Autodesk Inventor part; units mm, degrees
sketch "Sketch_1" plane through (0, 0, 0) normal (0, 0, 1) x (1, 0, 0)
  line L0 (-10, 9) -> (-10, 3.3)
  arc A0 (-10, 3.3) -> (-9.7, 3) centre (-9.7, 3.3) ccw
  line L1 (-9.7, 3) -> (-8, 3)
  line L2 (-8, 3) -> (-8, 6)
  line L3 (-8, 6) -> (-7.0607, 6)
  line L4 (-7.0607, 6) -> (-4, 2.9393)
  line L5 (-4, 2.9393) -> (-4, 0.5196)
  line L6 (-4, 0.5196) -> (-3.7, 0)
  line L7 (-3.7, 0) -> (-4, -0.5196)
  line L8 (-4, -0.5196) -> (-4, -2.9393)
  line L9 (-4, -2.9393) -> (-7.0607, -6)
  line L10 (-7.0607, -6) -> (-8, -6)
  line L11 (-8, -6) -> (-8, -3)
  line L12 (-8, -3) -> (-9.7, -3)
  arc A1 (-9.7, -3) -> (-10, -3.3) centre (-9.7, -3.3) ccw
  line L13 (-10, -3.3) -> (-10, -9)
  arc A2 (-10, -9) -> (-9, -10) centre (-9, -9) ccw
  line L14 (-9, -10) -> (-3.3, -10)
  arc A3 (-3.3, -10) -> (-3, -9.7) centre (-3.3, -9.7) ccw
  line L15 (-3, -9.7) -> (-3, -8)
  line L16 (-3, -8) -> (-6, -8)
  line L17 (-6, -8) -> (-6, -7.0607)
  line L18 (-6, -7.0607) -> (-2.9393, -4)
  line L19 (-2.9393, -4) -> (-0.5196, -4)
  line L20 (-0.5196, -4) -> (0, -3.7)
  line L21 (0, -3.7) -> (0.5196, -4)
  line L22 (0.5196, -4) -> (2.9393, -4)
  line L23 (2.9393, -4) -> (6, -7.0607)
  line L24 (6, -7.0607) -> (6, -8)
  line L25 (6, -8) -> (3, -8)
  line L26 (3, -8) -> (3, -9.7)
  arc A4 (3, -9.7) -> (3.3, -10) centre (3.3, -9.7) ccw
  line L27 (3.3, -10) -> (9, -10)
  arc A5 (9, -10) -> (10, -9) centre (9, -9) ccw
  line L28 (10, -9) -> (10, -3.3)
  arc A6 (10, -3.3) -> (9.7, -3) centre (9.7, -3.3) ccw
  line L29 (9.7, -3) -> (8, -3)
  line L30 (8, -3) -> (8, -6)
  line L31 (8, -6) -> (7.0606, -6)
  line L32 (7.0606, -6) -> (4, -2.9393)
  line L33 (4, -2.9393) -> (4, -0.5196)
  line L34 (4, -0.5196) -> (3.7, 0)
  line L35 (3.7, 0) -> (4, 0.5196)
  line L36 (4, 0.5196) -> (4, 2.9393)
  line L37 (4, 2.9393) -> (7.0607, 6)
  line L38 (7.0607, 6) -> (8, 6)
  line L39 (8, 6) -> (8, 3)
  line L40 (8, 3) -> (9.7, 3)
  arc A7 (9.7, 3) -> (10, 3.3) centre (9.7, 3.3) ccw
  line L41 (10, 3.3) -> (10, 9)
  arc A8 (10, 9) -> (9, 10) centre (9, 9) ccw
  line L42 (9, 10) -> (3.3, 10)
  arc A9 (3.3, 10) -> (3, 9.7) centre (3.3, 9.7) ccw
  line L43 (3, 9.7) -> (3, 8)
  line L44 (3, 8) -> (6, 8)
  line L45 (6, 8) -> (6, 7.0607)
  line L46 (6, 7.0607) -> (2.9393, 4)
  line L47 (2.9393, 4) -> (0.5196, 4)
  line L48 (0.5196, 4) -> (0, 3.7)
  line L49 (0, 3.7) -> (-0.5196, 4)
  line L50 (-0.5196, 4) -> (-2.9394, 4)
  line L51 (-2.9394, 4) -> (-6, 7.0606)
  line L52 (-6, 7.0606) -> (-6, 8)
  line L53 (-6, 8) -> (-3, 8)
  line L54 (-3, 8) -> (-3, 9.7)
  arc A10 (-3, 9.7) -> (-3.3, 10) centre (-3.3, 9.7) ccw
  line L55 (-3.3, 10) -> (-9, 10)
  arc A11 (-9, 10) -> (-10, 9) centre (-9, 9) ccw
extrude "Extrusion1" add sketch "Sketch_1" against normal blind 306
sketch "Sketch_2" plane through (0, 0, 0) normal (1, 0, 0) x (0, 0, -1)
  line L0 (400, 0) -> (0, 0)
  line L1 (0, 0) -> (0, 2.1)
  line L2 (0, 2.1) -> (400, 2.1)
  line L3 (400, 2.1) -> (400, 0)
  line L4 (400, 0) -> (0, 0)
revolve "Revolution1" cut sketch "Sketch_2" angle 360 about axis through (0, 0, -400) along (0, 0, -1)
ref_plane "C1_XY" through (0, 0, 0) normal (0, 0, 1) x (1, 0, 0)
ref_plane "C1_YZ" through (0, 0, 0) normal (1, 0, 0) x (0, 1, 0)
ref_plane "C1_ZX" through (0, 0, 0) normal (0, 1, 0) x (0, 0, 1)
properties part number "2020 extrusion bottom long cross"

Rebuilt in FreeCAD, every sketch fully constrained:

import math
import FreeCAD as App
import Part
import Sketcher

V = App.Vector
Q = App.Units.Quantity


def add_polygon(sketch, points):
    """Adds a closed chain of lines whose ends are joined by coincident constraints."""
    first, n = sketch.GeometryCount, len(points)
    for a, b in zip(points, points[1:] + points[:1]):
        sketch.addGeometry(Part.LineSegment(App.Vector(*a, 0), App.Vector(*b, 0)), False)
    for i in range(n):
        sketch.addConstraint(Sketcher.Constraint("Coincident", first + i, 2, first + (i + 1) % n, 1))

doc = App.newDocument("Part")
params = doc.addObject("Spreadsheet::Sheet", "Params")
for row, (alias, value) in enumerate([
    ("sketch1_radius", "1 mm"),
    ("sketch1_radius2", "0.3 mm"),
    ("sketch1_width", "3 mm"),
    ("sketch1_width2", "1.7 mm"),
    ("sketch1_width3", "5.7 mm"),
    ("pad1_length", "306 mm"),
    ("sketch2_height", "400 mm"),
    ("sketch2_width", "2.1 mm"),
    ("groove_angle", "360 deg"),
], start=1):
    params.set(f"A{row}", alias)
    params.set(f"B{row}", "=" + value)
    params.setAlias(f"B{row}", alias)

body = doc.addObject("PartDesign::Body", "Body")

# Sketch on XY plane
sketch1 = body.newObject("Sketcher::SketchObject", "Sketch")
sketch1.AttachmentSupport = (doc.getObject("XY_Plane"), [""])
sketch1.MapMode = "FlatFace"
sketch1.addGeometry(Part.ArcOfCircle(Part.Circle(V(-9, 9, 0), V(0, 0, 1), 1), math.radians(90), math.radians(180)), False)
sketch1.addGeometry(Part.LineSegment(V(-10, 9, 0), V(-10, 3.3, 0)), False)
sketch1.addGeometry(Part.ArcOfCircle(Part.Circle(V(-9.7, 3.3, 0), V(0, 0, 1), 0.3), math.radians(180), math.radians(270)), False)
sketch1.addGeometry(Part.LineSegment(V(-9.7, 3, 0), V(-8, 3, 0)), False)
sketch1.addGeometry(Part.LineSegment(V(-8, 3, 0), V(-8, 6, 0)), False)
sketch1.addGeometry(Part.LineSegment(V(-8, 6, 0), V(-7.06, 6, 0)), False)
sketch1.addGeometry(Part.LineSegment(V(-7.06, 6, 0), V(-4, 2.94, 0)), False)
sketch1.addGeometry(Part.LineSegment(V(-4, 2.94, 0), V(-4, 0.52, 0)), False)
sketch1.addGeometry(Part.LineSegment(V(-4, 0.52, 0), V(-3.7, 0, 0)), False)
sketch1.addGeometry(Part.LineSegment(V(-3.7, 0, 0), V(-4, -0.52, 0)), False)
sketch1.addGeometry(Part.LineSegment(V(-4, -0.52, 0), V(-4, -2.94, 0)), False)
sketch1.addGeometry(Part.LineSegment(V(-4, -2.94, 0), V(-7.06, -6, 0)), False)
sketch1.addGeometry(Part.LineSegment(V(-7.06, -6, 0), V(-8, -6, 0)), False)
sketch1.addGeometry(Part.LineSegment(V(-8, -6, 0), V(-8, -3, 0)), False)
sketch1.addGeometry(Part.LineSegment(V(-8, -3, 0), V(-9.7, -3, 0)), False)
sketch1.addGeometry(Part.ArcOfCircle(Part.Circle(V(-9.7, -3.3, 0), V(0, 0, 1), 0.3), math.radians(90), math.radians(180)), False)
sketch1.addGeometry(Part.LineSegment(V(-10, -3.3, 0), V(-10, -9, 0)), False)
sketch1.addGeometry(Part.ArcOfCircle(Part.Circle(V(-9, -9, 0), V(0, 0, 1), 1), math.radians(180), math.radians(270)), False)
sketch1.addGeometry(Part.LineSegment(V(-9, -10, 0), V(-3.3, -10, 0)), False)
sketch1.addGeometry(Part.ArcOfCircle(Part.Circle(V(-3.3, -9.7, 0), V(0, 0, 1), 0.3), math.radians(-90), math.radians(0)), False)
sketch1.addGeometry(Part.LineSegment(V(-3, -9.7, 0), V(-3, -8, 0)), False)
sketch1.addGeometry(Part.LineSegment(V(-3, -8, 0), V(-6, -8, 0)), False)
sketch1.addGeometry(Part.LineSegment(V(-6, -8, 0), V(-6, -7.06, 0)), False)
sketch1.addGeometry(Part.LineSegment(V(-6, -7.06, 0), V(-2.94, -4, 0)), False)
sketch1.addGeometry(Part.LineSegment(V(-2.94, -4, 0), V(-0.52, -4, 0)), False)
sketch1.addGeometry(Part.LineSegment(V(-0.52, -4, 0), V(0, -3.7, 0)), False)
sketch1.addGeometry(Part.LineSegment(V(0, -3.7, 0), V(0.52, -4, 0)), False)
sketch1.addGeometry(Part.LineSegment(V(0.52, -4, 0), V(2.94, -4, 0)), False)
sketch1.addGeometry(Part.LineSegment(V(2.94, -4, 0), V(6, -7.06, 0)), False)
sketch1.addGeometry(Part.LineSegment(V(6, -7.06, 0), V(6, -8, 0)), False)
sketch1.addGeometry(Part.LineSegment(V(6, -8, 0), V(3, -8, 0)), False)
sketch1.addGeometry(Part.LineSegment(V(3, -8, 0), V(3, -9.7, 0)), False)
sketch1.addGeometry(Part.ArcOfCircle(Part.Circle(V(3.3, -9.7, 0), V(0, 0, 1), 0.3), math.radians(180), math.radians(270)), False)
sketch1.addGeometry(Part.LineSegment(V(3.3, -10, 0), V(9, -10, 0)), False)
sketch1.addGeometry(Part.ArcOfCircle(Part.Circle(V(9, -9, 0), V(0, 0, 1), 1), math.radians(-90), math.radians(0)), False)
sketch1.addGeometry(Part.LineSegment(V(10, -9, 0), V(10, -3.3, 0)), False)
sketch1.addGeometry(Part.ArcOfCircle(Part.Circle(V(9.7, -3.3, 0), V(0, 0, 1), 0.3), math.radians(0), math.radians(90)), False)
sketch1.addGeometry(Part.LineSegment(V(9.7, -3, 0), V(8, -3, 0)), False)
sketch1.addGeometry(Part.LineSegment(V(8, -3, 0), V(8, -6, 0)), False)
sketch1.addGeometry(Part.LineSegment(V(8, -6, 0), V(7.06, -6, 0)), False)
sketch1.addGeometry(Part.LineSegment(V(7.06, -6, 0), V(4, -2.94, 0)), False)
sketch1.addGeometry(Part.LineSegment(V(4, -2.94, 0), V(4, -0.52, 0)), False)
sketch1.addGeometry(Part.LineSegment(V(4, -0.52, 0), V(3.7, 0, 0)), False)
sketch1.addGeometry(Part.LineSegment(V(3.7, 0, 0), V(4, 0.52, 0)), False)
sketch1.addGeometry(Part.LineSegment(V(4, 0.52, 0), V(4, 2.94, 0)), False)
sketch1.addGeometry(Part.LineSegment(V(4, 2.94, 0), V(7.06, 6, 0)), False)
sketch1.addGeometry(Part.LineSegment(V(7.06, 6, 0), V(8, 6, 0)), False)
sketch1.addGeometry(Part.LineSegment(V(8, 6, 0), V(8, 3, 0)), False)
sketch1.addGeometry(Part.LineSegment(V(8, 3, 0), V(9.7, 3, 0)), False)
sketch1.addGeometry(Part.ArcOfCircle(Part.Circle(V(9.7, 3.3, 0), V(0, 0, 1), 0.3), math.radians(-90), math.radians(0)), False)
sketch1.addGeometry(Part.LineSegment(V(10, 3.3, 0), V(10, 9, 0)), False)
sketch1.addGeometry(Part.ArcOfCircle(Part.Circle(V(9, 9, 0), V(0, 0, 1), 1), math.radians(0), math.radians(90)), False)
sketch1.addGeometry(Part.LineSegment(V(9, 10, 0), V(3.3, 10, 0)), False)
sketch1.addGeometry(Part.ArcOfCircle(Part.Circle(V(3.3, 9.7, 0), V(0, 0, 1), 0.3), math.radians(90), math.radians(180)), False)
sketch1.addGeometry(Part.LineSegment(V(3, 9.7, 0), V(3, 8, 0)), False)
sketch1.addGeometry(Part.LineSegment(V(3, 8, 0), V(6, 8, 0)), False)
sketch1.addGeometry(Part.LineSegment(V(6, 8, 0), V(6, 7.06, 0)), False)
sketch1.addGeometry(Part.LineSegment(V(6, 7.06, 0), V(2.94, 4, 0)), False)
sketch1.addGeometry(Part.LineSegment(V(2.94, 4, 0), V(0.52, 4, 0)), False)
sketch1.addGeometry(Part.LineSegment(V(0.52, 4, 0), V(0, 3.7, 0)), False)
sketch1.addGeometry(Part.LineSegment(V(0, 3.7, 0), V(-0.52, 4, 0)), False)
sketch1.addGeometry(Part.LineSegment(V(-0.52, 4, 0), V(-2.94, 4, 0)), False)
sketch1.addGeometry(Part.LineSegment(V(-2.94, 4, 0), V(-6, 7.06, 0)), False)
sketch1.addGeometry(Part.LineSegment(V(-6, 7.06, 0), V(-6, 8, 0)), False)
sketch1.addGeometry(Part.LineSegment(V(-6, 8, 0), V(-3, 8, 0)), False)
sketch1.addGeometry(Part.LineSegment(V(-3, 8, 0), V(-3, 9.7, 0)), False)
sketch1.addGeometry(Part.ArcOfCircle(Part.Circle(V(-3.3, 9.7, 0), V(0, 0, 1), 0.3), math.radians(0), math.radians(90)), False)
sketch1.addGeometry(Part.LineSegment(V(-3.3, 10, 0), V(-9, 10, 0)), False)
sketch1.addConstraint(Sketcher.Constraint("Tangent", 0, 2, 1, 1))
sketch1.addConstraint(Sketcher.Constraint("Tangent", 1, 2, 2, 1))
sketch1.addConstraint(Sketcher.Constraint("Tangent", 2, 2, 3, 1))
sketch1.addConstraint(Sketcher.Constraint("Coincident", 3, 2, 4, 1))
sketch1.addConstraint(Sketcher.Constraint("Coincident", 4, 2, 5, 1))
sketch1.addConstraint(Sketcher.Constraint("Coincident", 5, 2, 6, 1))
sketch1.addConstraint(Sketcher.Constraint("Coincident", 6, 2, 7, 1))
sketch1.addConstraint(Sketcher.Constraint("Coincident", 7, 2, 8, 1))
sketch1.addConstraint(Sketcher.Constraint("Coincident", 8, 2, 9, 1))
sketch1.addConstraint(Sketcher.Constraint("Coincident", 9, 2, 10, 1))
sketch1.addConstraint(Sketcher.Constraint("Coincident", 10, 2, 11, 1))
sketch1.addConstraint(Sketcher.Constraint("Coincident", 11, 2, 12, 1))
sketch1.addConstraint(Sketcher.Constraint("Coincident", 12, 2, 13, 1))
sketch1.addConstraint(Sketcher.Constraint("Coincident", 13, 2, 14, 1))
sketch1.addConstraint(Sketcher.Constraint("Tangent", 14, 2, 15, 1))
sketch1.addConstraint(Sketcher.Constraint("Tangent", 15, 2, 16, 1))
sketch1.addConstraint(Sketcher.Constraint("Tangent", 16, 2, 17, 1))
sketch1.addConstraint(Sketcher.Constraint("Tangent", 17, 2, 18, 1))
sketch1.addConstraint(Sketcher.Constraint("Tangent", 18, 2, 19, 1))
sketch1.addConstraint(Sketcher.Constraint("Tangent", 19, 2, 20, 1))
sketch1.addConstraint(Sketcher.Constraint("Coincident", 20, 2, 21, 1))
sketch1.addConstraint(Sketcher.Constraint("Coincident", 21, 2, 22, 1))
sketch1.addConstraint(Sketcher.Constraint("Coincident", 22, 2, 23, 1))
sketch1.addConstraint(Sketcher.Constraint("Coincident", 23, 2, 24, 1))
sketch1.addConstraint(Sketcher.Constraint("Coincident", 24, 2, 25, 1))
sketch1.addConstraint(Sketcher.Constraint("Coincident", 25, 2, 26, 1))
sketch1.addConstraint(Sketcher.Constraint("Coincident", 26, 2, 27, 1))
sketch1.addConstraint(Sketcher.Constraint("Coincident", 27, 2, 28, 1))
sketch1.addConstraint(Sketcher.Constraint("Coincident", 28, 2, 29, 1))
sketch1.addConstraint(Sketcher.Constraint("Coincident", 29, 2, 30, 1))
sketch1.addConstraint(Sketcher.Constraint("Coincident", 30, 2, 31, 1))
sketch1.addConstraint(Sketcher.Constraint("Tangent", 31, 2, 32, 1))
sketch1.addConstraint(Sketcher.Constraint("Tangent", 32, 2, 33, 1))
sketch1.addConstraint(Sketcher.Constraint("Tangent", 33, 2, 34, 1))
sketch1.addConstraint(Sketcher.Constraint("Tangent", 34, 2, 35, 1))
sketch1.addConstraint(Sketcher.Constraint("Tangent", 35, 2, 36, 1))
sketch1.addConstraint(Sketcher.Constraint("Tangent", 36, 2, 37, 1))
sketch1.addConstraint(Sketcher.Constraint("Coincident", 37, 2, 38, 1))
sketch1.addConstraint(Sketcher.Constraint("Coincident", 38, 2, 39, 1))
sketch1.addConstraint(Sketcher.Constraint("Coincident", 39, 2, 40, 1))
sketch1.addConstraint(Sketcher.Constraint("Coincident", 40, 2, 41, 1))
sketch1.addConstraint(Sketcher.Constraint("Coincident", 41, 2, 42, 1))
sketch1.addConstraint(Sketcher.Constraint("Coincident", 42, 2, 43, 1))
sketch1.addConstraint(Sketcher.Constraint("Coincident", 43, 2, 44, 1))
sketch1.addConstraint(Sketcher.Constraint("Coincident", 44, 2, 45, 1))
sketch1.addConstraint(Sketcher.Constraint("Coincident", 45, 2, 46, 1))
sketch1.addConstraint(Sketcher.Constraint("Coincident", 46, 2, 47, 1))
sketch1.addConstraint(Sketcher.Constraint("Coincident", 47, 2, 48, 1))
sketch1.addConstraint(Sketcher.Constraint("Tangent", 48, 2, 49, 1))
sketch1.addConstraint(Sketcher.Constraint("Tangent", 49, 2, 50, 1))
sketch1.addConstraint(Sketcher.Constraint("Tangent", 50, 2, 51, 1))
sketch1.addConstraint(Sketcher.Constraint("Tangent", 51, 2, 52, 1))
sketch1.addConstraint(Sketcher.Constraint("Tangent", 52, 2, 53, 1))
sketch1.addConstraint(Sketcher.Constraint("Tangent", 53, 2, 54, 1))
sketch1.addConstraint(Sketcher.Constraint("Coincident", 54, 2, 55, 1))
sketch1.addConstraint(Sketcher.Constraint("Coincident", 55, 2, 56, 1))
sketch1.addConstraint(Sketcher.Constraint("Coincident", 56, 2, 57, 1))
sketch1.addConstraint(Sketcher.Constraint("Coincident", 57, 2, 58, 1))
sketch1.addConstraint(Sketcher.Constraint("Coincident", 58, 2, 59, 1))
sketch1.addConstraint(Sketcher.Constraint("Coincident", 59, 2, 60, 1))
sketch1.addConstraint(Sketcher.Constraint("Coincident", 60, 2, 61, 1))
sketch1.addConstraint(Sketcher.Constraint("Coincident", 61, 2, 62, 1))
sketch1.addConstraint(Sketcher.Constraint("Coincident", 62, 2, 63, 1))
sketch1.addConstraint(Sketcher.Constraint("Coincident", 63, 2, 64, 1))
sketch1.addConstraint(Sketcher.Constraint("Coincident", 64, 2, 65, 1))
sketch1.addConstraint(Sketcher.Constraint("Tangent", 65, 2, 66, 1))
sketch1.addConstraint(Sketcher.Constraint("Tangent", 66, 2, 67, 1))
sketch1.addConstraint(Sketcher.Constraint("Tangent", 67, 2, 0, 1))
sketch1.addConstraint(Sketcher.Constraint("Vertical", 1))
sketch1.addConstraint(Sketcher.Constraint("Horizontal", 3))
sketch1.addConstraint(Sketcher.Constraint("Vertical", 4))
sketch1.addConstraint(Sketcher.Constraint("Horizontal", 5))
sketch1.addConstraint(Sketcher.Constraint("Vertical", 7))
sketch1.addConstraint(Sketcher.Constraint("Vertical", 10))
sketch1.addConstraint(Sketcher.Constraint("Horizontal", 12))
sketch1.addConstraint(Sketcher.Constraint("Vertical", 13))
sketch1.addConstraint(Sketcher.Constraint("Horizontal", 14))
sketch1.addConstraint(Sketcher.Constraint("Vertical", 16))
sketch1.addConstraint(Sketcher.Constraint("Horizontal", 18))
sketch1.addConstraint(Sketcher.Constraint("Vertical", 20))
sketch1.addConstraint(Sketcher.Constraint("Horizontal", 21))
sketch1.addConstraint(Sketcher.Constraint("Vertical", 22))
sketch1.addConstraint(Sketcher.Constraint("Horizontal", 24))
sketch1.addConstraint(Sketcher.Constraint("Horizontal", 27))
sketch1.addConstraint(Sketcher.Constraint("Vertical", 29))
sketch1.addConstraint(Sketcher.Constraint("Horizontal", 30))
sketch1.addConstraint(Sketcher.Constraint("Vertical", 31))
sketch1.addConstraint(Sketcher.Constraint("Horizontal", 33))
sketch1.addConstraint(Sketcher.Constraint("Vertical", 35))
sketch1.addConstraint(Sketcher.Constraint("Horizontal", 37))
sketch1.addConstraint(Sketcher.Constraint("Vertical", 38))
sketch1.addConstraint(Sketcher.Constraint("Horizontal", 39))
sketch1.addConstraint(Sketcher.Constraint("Vertical", 41))
sketch1.addConstraint(Sketcher.Constraint("Vertical", 44))
sketch1.addConstraint(Sketcher.Constraint("Horizontal", 46))
sketch1.addConstraint(Sketcher.Constraint("Vertical", 47))
sketch1.addConstraint(Sketcher.Constraint("Horizontal", 48))
sketch1.addConstraint(Sketcher.Constraint("Vertical", 50))
sketch1.addConstraint(Sketcher.Constraint("Horizontal", 52))
sketch1.addConstraint(Sketcher.Constraint("Vertical", 54))
sketch1.addConstraint(Sketcher.Constraint("Horizontal", 55))
sketch1.addConstraint(Sketcher.Constraint("Vertical", 56))
sketch1.addConstraint(Sketcher.Constraint("Horizontal", 58))
sketch1.addConstraint(Sketcher.Constraint("Horizontal", 61))
sketch1.addConstraint(Sketcher.Constraint("Vertical", 63))
sketch1.addConstraint(Sketcher.Constraint("Horizontal", 64))
sketch1.addConstraint(Sketcher.Constraint("Vertical", 65))
sketch1.addConstraint(Sketcher.Constraint("Horizontal", 67))
sketch1.addConstraint(Sketcher.Constraint("Equal", 2, 15))
sketch1.addConstraint(Sketcher.Constraint("Equal", 0, 17))
sketch1.addConstraint(Sketcher.Constraint("Equal", 15, 19))
sketch1.addConstraint(Sketcher.Constraint("Equal", 19, 32))
sketch1.addConstraint(Sketcher.Constraint("Equal", 17, 34))
sketch1.addConstraint(Sketcher.Constraint("Equal", 32, 36))
sketch1.addConstraint(Sketcher.Constraint("Equal", 36, 49))
sketch1.addConstraint(Sketcher.Constraint("Equal", 34, 51))
sketch1.addConstraint(Sketcher.Constraint("Equal", 49, 53))
sketch1.addConstraint(Sketcher.Constraint("Equal", 53, 66))
sketch1.addConstraint(Sketcher.Constraint("Symmetric", 0, 3, 34, 3, -1, 1))
sketch1.addConstraint(Sketcher.Constraint("Symmetric", 15, 3, 49, 3, -1, 1))
sketch1.addConstraint(Sketcher.Constraint("Symmetric", 19, 3, 53, 3, -1, 1))
sketch1.addConstraint(Sketcher.Constraint("Symmetric", 3, 2, 37, 2, -1, 1))
sketch1.addConstraint(Sketcher.Constraint("Symmetric", 5, 2, 39, 2, -1, 1))
sketch1.addConstraint(Sketcher.Constraint("Symmetric", 6, 2, 40, 2, -1, 1))
sketch1.addConstraint(Sketcher.Constraint("Symmetric", 8, 2, 42, 2, -1, 1))
sketch1.addConstraint(Sketcher.Constraint("Symmetric", 9, 2, 43, 2, -1, 1))
sketch1.addConstraint(Sketcher.Constraint("Symmetric", 11, 2, 45, 2, -1, 1))
sketch1.addConstraint(Sketcher.Constraint("Symmetric", 21, 2, 55, 2, -1, 1))
sketch1.addConstraint(Sketcher.Constraint("Symmetric", 23, 2, 57, 2, -1, 1))
sketch1.addConstraint(Sketcher.Constraint("Symmetric", 25, 2, 59, 2, -1, 1))
sketch1.addConstraint(Sketcher.Constraint("Symmetric", 26, 2, 60, 2, -1, 1))
sketch1.addConstraint(Sketcher.Constraint("Symmetric", 28, 2, 62, 2, -1, 1))
sketch1.addConstraint(Sketcher.Constraint("Symmetric", 30, 2, 64, 2, -1, 1))
sketch1.addConstraint(Sketcher.Constraint("Symmetric", 19, 3, 32, 3, -2))
sketch1.addConstraint(Sketcher.Constraint("Symmetric", 15, 3, 36, 3, -2))
sketch1.addConstraint(Sketcher.Constraint("Symmetric", 24, 2, 26, 2, -2))
sketch1.addConstraint(Sketcher.Constraint("Symmetric", 22, 2, 28, 2, -2))
sketch1.addConstraint(Sketcher.Constraint("Symmetric", 12, 2, 38, 2, -2))
sketch1.addConstraint(Sketcher.Constraint("Symmetric", 10, 2, 40, 2, -2))
sketch1.addConstraint(Sketcher.Constraint("PointOnObject", 8, 2, -1))
sketch1.addConstraint(Sketcher.Constraint("PointOnObject", 25, 2, -2))
sketch1.addConstraint(Sketcher.Constraint("Perpendicular", 6, 11))
sketch1.addConstraint(Sketcher.Constraint("Parallel", 11, 23))
sketch1.addConstraint(Sketcher.Constraint("Perpendicular", 8, 25))
sketch1.addConstraint(Sketcher.Constraint("Perpendicular", 9, 26))
sketch1.addConstraint(Sketcher.Constraint("Perpendicular", 23, 28))
sketch1.addConstraint(Sketcher.Constraint("Perpendicular", 25, 42))
sketch1.addConstraint(Sketcher.Constraint("Perpendicular", 40, 45))
sketch1.addConstraint(Sketcher.Constraint("Parallel", 45, 57))
sketch1.addConstraint(Sketcher.Constraint("Perpendicular", 42, 59))
sketch1.addConstraint(Sketcher.Constraint("Perpendicular", 57, 62))
sketch1.addConstraint(Sketcher.Constraint("Horizontal", 21, 2, 29, 2))
sketch1.addConstraint(Sketcher.Constraint("Vertical", 5, 2, 11, 2))
sketch1.addConstraint(Sketcher.Constraint("Vertical", 38, 2, 46, 2))
sketch1.addConstraint(Sketcher.Constraint("Equal", 67, 1))
sketch1.addConstraint(Sketcher.Constraint("Equal", 64, 4))
sketch1.addConstraint(Sketcher.Constraint("Equal", 61, 7))
sketch1.addConstraint(Sketcher.Constraint("Equal", 48, 20))
sketch1.addConstraint(Sketcher.Constraint("Equal", 46, 22))
sketch1.addConstraint(Sketcher.Constraint("Equal", 11, 23))
sketch1.addConstraint(Sketcher.Constraint("Equal", 9, 25))
sketch1.addConstraint(Sketcher.Constraint("Radius", 0, 1.0))
sketch1.addConstraint(Sketcher.Constraint("Radius", 2, 0.3))
sketch1.addConstraint(Sketcher.Constraint("DistanceX", 21, 2, 21, 1, 3.0))
sketch1.addConstraint(Sketcher.Constraint("Angle", 8, Q("-59.9993 deg")))
sketch1.addConstraint(Sketcher.Constraint("DistanceX", 3, 1, 3, 2, 1.7))
sketch1.addConstraint(Sketcher.Constraint("DistanceX", 18, 1, 18, 2, 5.7))
sketch1.addConstraint(Sketcher.Constraint("DistanceX", 0, 3, -1, 1, 9.0))
sketch1.addConstraint(Sketcher.Constraint("DistanceX", 6, 2, -1, 1, 4.0))
sketch1.addConstraint(Sketcher.Constraint("Distance", 8, 0.6))
sketch1.addConstraint(Sketcher.Constraint("DistanceX", 5, 1, 5, 2, 0.9393))
sketch1.setExpression("Constraints[161]", "Params.sketch1_radius")
sketch1.setExpression("Constraints[162]", "Params.sketch1_radius2")
sketch1.setExpression("Constraints[163]", "Params.sketch1_width")
sketch1.setExpression("Constraints[165]", "Params.sketch1_width2")
sketch1.setExpression("Constraints[166]", "Params.sketch1_width3")
pad1 = body.newObject("PartDesign::Pad", "Pad")
pad1.Profile = sketch1
pad1.setExpression("Length", "Params.pad1_length")
pad1.Reversed = True

# Sketch on YZ plane
sketch2 = body.newObject("Sketcher::SketchObject", "Sketch001")
sketch2.AttachmentSupport = (doc.getObject("YZ_Plane"), [""])
sketch2.MapMode = "FlatFace"
add_polygon(sketch2, [(0, 0), (0, -400), (2.1, -400), (2.1, 0)])  # lines 0-3
sketch2.addConstraint(Sketcher.Constraint("Vertical", 0))
sketch2.addConstraint(Sketcher.Constraint("Horizontal", 1))
sketch2.addConstraint(Sketcher.Constraint("Vertical", 2))
sketch2.addConstraint(Sketcher.Constraint("Horizontal", 3))
sketch2.addConstraint(Sketcher.Constraint("Coincident", 3, 2, -1, 1))
sketch2.addConstraint(Sketcher.Constraint("DistanceY", 0, 2, 0, 1, 400.0))
sketch2.addConstraint(Sketcher.Constraint("DistanceX", 1, 1, 1, 2, 2.1))
sketch2.setExpression("Constraints[9]", "Params.sketch2_height")
sketch2.setExpression("Constraints[10]", "Params.sketch2_width")
groove = body.newObject("PartDesign::Groove", "Groove")
groove.Profile = sketch2
groove.ReferenceAxis = (sketch2, ["V_Axis"])
groove.setExpression("Angle", "Params.groove_angle")

doc.recompute()
